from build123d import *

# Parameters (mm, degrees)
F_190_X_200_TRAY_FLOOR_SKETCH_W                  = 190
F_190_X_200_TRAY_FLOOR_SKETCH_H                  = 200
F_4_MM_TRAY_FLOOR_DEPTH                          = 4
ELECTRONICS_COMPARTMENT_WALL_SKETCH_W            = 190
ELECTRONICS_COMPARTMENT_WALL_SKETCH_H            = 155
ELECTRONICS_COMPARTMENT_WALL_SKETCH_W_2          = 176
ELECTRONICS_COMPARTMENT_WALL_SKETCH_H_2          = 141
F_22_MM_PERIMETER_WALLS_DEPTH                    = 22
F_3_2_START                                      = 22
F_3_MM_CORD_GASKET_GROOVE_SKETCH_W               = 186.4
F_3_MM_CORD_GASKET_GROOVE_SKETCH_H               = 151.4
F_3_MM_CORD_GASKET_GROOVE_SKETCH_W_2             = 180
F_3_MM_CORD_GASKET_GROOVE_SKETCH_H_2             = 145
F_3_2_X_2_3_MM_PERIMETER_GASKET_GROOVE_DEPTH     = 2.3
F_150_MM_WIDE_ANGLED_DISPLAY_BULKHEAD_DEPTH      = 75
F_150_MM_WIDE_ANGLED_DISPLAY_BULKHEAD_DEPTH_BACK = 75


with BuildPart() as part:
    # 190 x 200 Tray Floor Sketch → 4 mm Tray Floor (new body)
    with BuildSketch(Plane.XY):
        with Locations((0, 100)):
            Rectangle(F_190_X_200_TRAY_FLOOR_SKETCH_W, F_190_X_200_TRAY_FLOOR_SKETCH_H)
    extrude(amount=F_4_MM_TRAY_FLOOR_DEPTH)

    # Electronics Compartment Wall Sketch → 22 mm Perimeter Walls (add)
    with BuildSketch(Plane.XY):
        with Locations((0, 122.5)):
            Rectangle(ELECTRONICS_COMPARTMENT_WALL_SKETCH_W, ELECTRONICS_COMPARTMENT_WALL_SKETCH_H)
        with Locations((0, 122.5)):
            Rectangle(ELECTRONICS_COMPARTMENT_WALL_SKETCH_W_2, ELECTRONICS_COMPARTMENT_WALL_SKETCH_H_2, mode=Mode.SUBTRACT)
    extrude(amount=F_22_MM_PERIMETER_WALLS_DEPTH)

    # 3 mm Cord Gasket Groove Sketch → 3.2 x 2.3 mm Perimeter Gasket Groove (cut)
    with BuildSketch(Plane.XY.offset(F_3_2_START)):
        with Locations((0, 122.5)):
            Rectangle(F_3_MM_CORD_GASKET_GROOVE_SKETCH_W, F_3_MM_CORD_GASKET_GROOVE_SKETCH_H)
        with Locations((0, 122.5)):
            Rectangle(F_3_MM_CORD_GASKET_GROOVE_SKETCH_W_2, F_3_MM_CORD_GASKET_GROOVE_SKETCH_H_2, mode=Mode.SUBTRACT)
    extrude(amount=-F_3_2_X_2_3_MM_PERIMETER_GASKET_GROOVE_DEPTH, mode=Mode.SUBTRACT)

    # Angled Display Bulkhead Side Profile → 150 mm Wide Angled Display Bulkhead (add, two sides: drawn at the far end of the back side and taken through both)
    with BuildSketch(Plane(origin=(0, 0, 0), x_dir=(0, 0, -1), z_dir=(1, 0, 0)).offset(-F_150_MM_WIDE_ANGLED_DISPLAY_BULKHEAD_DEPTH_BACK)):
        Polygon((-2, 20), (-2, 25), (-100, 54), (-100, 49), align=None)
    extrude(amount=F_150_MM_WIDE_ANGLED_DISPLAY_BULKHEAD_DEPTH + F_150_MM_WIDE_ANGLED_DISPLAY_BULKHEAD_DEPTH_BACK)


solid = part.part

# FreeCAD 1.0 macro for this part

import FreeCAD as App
import Part
import Sketcher

V = App.Vector


def add_polygon(sketch, points):
    """Adds a closed chain of lines whose ends are joined by coincident constraints."""
    first, n = sketch.GeometryCount, len(points)
    for a, b in zip(points, points[1:] + points[:1]):
        sketch.addGeometry(Part.LineSegment(App.Vector(*a, 0), App.Vector(*b, 0)), False)
    for i in range(n):
        sketch.addConstraint(Sketcher.Constraint("Coincident", first + i, 2, first + (i + 1) % n, 1))

doc = App.newDocument("Part")
params = doc.addObject("Spreadsheet::Sheet", "Params")
for row, (alias, value) in enumerate([
    ("sketch1_width", "190 mm"),
    ("sketch1_height", "200 mm"),
    ("pad1_length", "4 mm"),
    ("sketch2_width", "190 mm"),
    ("sketch2_width2", "176 mm"),
    ("sketch2_height", "155 mm"),
    ("sketch2_height2", "141 mm"),
    ("pad2_length", "22 mm"),
    ("sketch3_width", "180 mm"),
    ("sketch3_height", "145 mm"),
    ("sketch3_width2", "186.4 mm"),
    ("sketch3_height2", "151.4 mm"),
    ("pocket1_length", "2.3 mm"),
    ("sketch4_width", "5 mm"),
    ("pad3_length", "75 mm"),
    ("pad3_length2", "75 mm"),
], start=1):
    params.set(f"A{row}", alias)
    params.set(f"B{row}", "=" + value)
    params.setAlias(f"B{row}", alias)

body = doc.addObject("PartDesign::Body", "Body")

# Sketch on XY plane
sketch1 = body.newObject("Sketcher::SketchObject", "Sketch")
sketch1.AttachmentSupport = (doc.getObject("XY_Plane"), [""])
sketch1.MapMode = "FlatFace"
add_polygon(sketch1, [(-95, 200), (-95, 0), (95, 0), (95, 200)])  # lines 0-3
sketch1.addConstraint([
    Sketcher.Constraint("Vertical", 0),
    Sketcher.Constraint("Horizontal", 1),
    Sketcher.Constraint("Vertical", 2),
    Sketcher.Constraint("Horizontal", 3),
    Sketcher.Constraint("Symmetric", 0, 2, 1, 2, -1, 1),
    Sketcher.Constraint("DistanceX", 1, 1, 1, 2, 190.0),
    Sketcher.Constraint("DistanceY", 0, 2, 0, 1, 200.0),
])
sketch1.setExpression("Constraints[9]", "Params.sketch1_width")
sketch1.setExpression("Constraints[10]", "Params.sketch1_height")
pad1 = body.newObject("PartDesign::Pad", "Pad")
pad1.Profile = sketch1
pad1.setExpression("Length", "Params.pad1_length")

# Sketch on XY plane
sketch2 = body.newObject("Sketcher::SketchObject", "Sketch001")
sketch2.AttachmentSupport = (doc.getObject("XY_Plane"), [""])
sketch2.MapMode = "FlatFace"
add_polygon(sketch2, [(-95, 200), (-95, 45), (95, 45), (95, 200)])  # lines 0-3
add_polygon(sketch2, [(88, 52), (-88, 52), (-88, 193), (88, 193)])  # lines 4-7
sketch2.addConstraint([
    Sketcher.Constraint("Vertical", 0),
    Sketcher.Constraint("Horizontal", 1),
    Sketcher.Constraint("Vertical", 2),
    Sketcher.Constraint("Horizontal", 3),
    Sketcher.Constraint("Horizontal", 4),
    Sketcher.Constraint("Vertical", 5),
    Sketcher.Constraint("Horizontal", 6),
    Sketcher.Constraint("Vertical", 7),
    Sketcher.Constraint("DistanceX", 1, 1, 1, 2, 190.0),
    Sketcher.Constraint("DistanceX", 4, 2, 4, 1, 176.0),
    Sketcher.Constraint("DistanceY", 0, 2, 0, 1, 155.0),
    Sketcher.Constraint("DistanceY", 5, 1, 5, 2, 141.0),
    Sketcher.Constraint("DistanceX", 0, 2, -1, 1, 95.0),
    Sketcher.Constraint("DistanceY", -1, 1, 0, 2, 45.0),
    Sketcher.Constraint("DistanceX", 4, 2, -1, 1, 88.0),
    Sketcher.Constraint("DistanceY", -1, 1, 4, 2, 52.0),
])
sketch2.setExpression("Constraints[16]", "Params.sketch2_width")
sketch2.setExpression("Constraints[17]", "Params.sketch2_width2")
sketch2.setExpression("Constraints[18]", "Params.sketch2_height")
sketch2.setExpression("Constraints[19]", "Params.sketch2_height2")
pad2 = body.newObject("PartDesign::Pad", "Pad001")
pad2.Profile = sketch2
pad2.setExpression("Length", "Params.pad2_length")

# Sketch on XY plane
sketch3 = body.newObject("Sketcher::SketchObject", "Sketch002")
sketch3.AttachmentSupport = (doc.getObject("XY_Plane"), [""])
sketch3.MapMode = "FlatFace"
sketch3.AttachmentOffset = App.Placement(V(0, 0, 22), App.Rotation())
add_polygon(sketch3, [(-93, 198), (-93, 47), (93, 47), (93, 198)])  # lines 0-3
add_polygon(sketch3, [(90, 50), (-90, 50), (-90, 195), (90, 195)])  # lines 4-7
sketch3.addConstraint([
    Sketcher.Constraint("Vertical", 0),
    Sketcher.Constraint("Horizontal", 1),
    Sketcher.Constraint("Vertical", 2),
    Sketcher.Constraint("Horizontal", 3),
    Sketcher.Constraint("Horizontal", 4),
    Sketcher.Constraint("Vertical", 5),
    Sketcher.Constraint("Horizontal", 6),
    Sketcher.Constraint("Vertical", 7),
    Sketcher.Constraint("DistanceX", 4, 2, 4, 1, 180.0),
    Sketcher.Constraint("DistanceY", 5, 1, 5, 2, 145.0),
    Sketcher.Constraint("DistanceX", 1, 1, 1, 2, 186.4),
    Sketcher.Constraint("DistanceY", 0, 2, 0, 1, 151.4),
    Sketcher.Constraint("DistanceX", 4, 2, -1, 1, 90.0),
    Sketcher.Constraint("DistanceY", -1, 1, 4, 2, 50.0),
    Sketcher.Constraint("DistanceX", 0, 2, -1, 1, 93.2),
    Sketcher.Constraint("DistanceY", -1, 1, 0, 2, 46.8),
])
sketch3.setExpression("Constraints[16]", "Params.sketch3_width")
sketch3.setExpression("Constraints[17]", "Params.sketch3_height")
sketch3.setExpression("Constraints[18]", "Params.sketch3_width2")
sketch3.setExpression("Constraints[19]", "Params.sketch3_height2")
pocket1 = body.newObject("PartDesign::Pocket", "Pocket")
pocket1.Profile = sketch3
pocket1.setExpression("Length", "Params.pocket1_length")

# Sketch on YZ plane
sketch4 = body.newObject("Sketcher::SketchObject", "Sketch003")
sketch4.AttachmentSupport = (doc.getObject("YZ_Plane"), [""])
sketch4.MapMode = "FlatFace"
add_polygon(sketch4, [(20, 2), (25, 2), (54, 100), (49, 100)])  # lines 0-3
sketch4.addConstraint([
    Sketcher.Constraint("Horizontal", 0),
    Sketcher.Constraint("Horizontal", 2),
    Sketcher.Constraint("Parallel", 1, 3),
    Sketcher.Constraint("DistanceX", 0, 1, 0, 2, 5.0),
    Sketcher.Constraint("DistanceX", -1, 1, 0, 2, 25.0),
    Sketcher.Constraint("DistanceY", -1, 1, 0, 2, 2.0),
    Sketcher.Constraint("DistanceX", -1, 1, 1, 2, 54.0),
    Sketcher.Constraint("DistanceY", -1, 1, 1, 2, 100.0),
])
sketch4.setExpression("Constraints[7]", "Params.sketch4_width")
pad3 = body.newObject("PartDesign::Pad", "Pad002")
pad3.Profile = sketch4
pad3.Type = "TwoLengths"
pad3.setExpression("Length", "Params.pad3_length")
pad3.setExpression("Length2", "Params.pad3_length2")

doc.recompute()
